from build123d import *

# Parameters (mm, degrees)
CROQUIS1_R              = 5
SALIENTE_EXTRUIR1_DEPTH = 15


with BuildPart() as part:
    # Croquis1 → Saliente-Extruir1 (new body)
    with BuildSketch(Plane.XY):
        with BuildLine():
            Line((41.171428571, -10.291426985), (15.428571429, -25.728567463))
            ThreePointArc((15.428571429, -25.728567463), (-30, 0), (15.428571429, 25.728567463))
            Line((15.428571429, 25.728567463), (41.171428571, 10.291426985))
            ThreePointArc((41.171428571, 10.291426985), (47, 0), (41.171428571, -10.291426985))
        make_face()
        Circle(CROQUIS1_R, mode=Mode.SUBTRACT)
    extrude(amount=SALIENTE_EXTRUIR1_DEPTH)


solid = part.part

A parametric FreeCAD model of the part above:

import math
import FreeCAD as App
import Part
import Sketcher
from FreeCAD import Vector
Q = App.Units.Quantity

doc = App.newDocument("Part")
params = doc.addObject("Spreadsheet::Sheet", "Params")
for row, (alias, value) in enumerate([
    ("sketch1_diameter", "10 mm"),
    ("sketch1_radius", "12 mm"),
    ("sketch1_radius2", "30 mm"),
    ("pad1_length", "15 mm"),
], start=1):
    params.set(f"A{row}", alias)
    params.set(f"B{row}", "=" + value)
    params.setAlias(f"B{row}", alias)

body = doc.addObject("PartDesign::Body", "Body")

sketch1 = body.newObject("Sketcher::SketchObject", "Sketch")
sketch1.AttachmentSupport = (doc.getObject("XY_Plane"), [""])
sketch1.MapMode = "FlatFace"
sketch1.addGeometry([
    Part.LineSegment(Vector(15, -26, 0), Vector(41, -10, 0)),
    Part.ArcOfCircle(Part.Circle(Vector(35, 0, 0), Vector(0, 0, 1), 12), math.radians(-59), math.radians(59)),
    Part.LineSegment(Vector(41, 10, 0), Vector(15, 26, 0)),
    Part.ArcOfCircle(Part.Circle(Vector(0, 0, 0), Vector(0, 0, 1), 30), math.radians(59), math.radians(301)),
    Part.Circle(Vector(0, 0, 0), Vector(0, 0, 1), 5),
], False)
sketch1.addConstraint([
    Sketcher.Constraint("Tangent", 0, 2, 1, 1),
    Sketcher.Constraint("Tangent", 1, 2, 2, 1),
    Sketcher.Constraint("Tangent", 2, 2, 3, 1),
    Sketcher.Constraint("Tangent", 3, 2, 0, 1),
    Sketcher.Constraint("Coincident", 3, 3, -1, 1),
    Sketcher.Constraint("Coincident", 4, 3, -1, 1),
    Sketcher.Constraint("PointOnObject", 1, 3, -1),
    Sketcher.Constraint("Diameter", 4, Q("10 mm")),
    Sketcher.Constraint("Radius", 1, Q("12 mm")),
    Sketcher.Constraint("Radius", 3, Q("30 mm")),
    Sketcher.Constraint("DistanceX", -1, 1, 1, 3, Q("35 mm")),
])
sketch1.setExpression("Constraints[7]", "Params.sketch1_diameter")
sketch1.setExpression("Constraints[8]", "Params.sketch1_radius")
sketch1.setExpression("Constraints[9]", "Params.sketch1_radius2")
pad1 = body.newObject("PartDesign::Pad", "Pad")
pad1.Profile = sketch1
pad1.setExpression("Length", "Params.pad1_length")

doc.recompute()
